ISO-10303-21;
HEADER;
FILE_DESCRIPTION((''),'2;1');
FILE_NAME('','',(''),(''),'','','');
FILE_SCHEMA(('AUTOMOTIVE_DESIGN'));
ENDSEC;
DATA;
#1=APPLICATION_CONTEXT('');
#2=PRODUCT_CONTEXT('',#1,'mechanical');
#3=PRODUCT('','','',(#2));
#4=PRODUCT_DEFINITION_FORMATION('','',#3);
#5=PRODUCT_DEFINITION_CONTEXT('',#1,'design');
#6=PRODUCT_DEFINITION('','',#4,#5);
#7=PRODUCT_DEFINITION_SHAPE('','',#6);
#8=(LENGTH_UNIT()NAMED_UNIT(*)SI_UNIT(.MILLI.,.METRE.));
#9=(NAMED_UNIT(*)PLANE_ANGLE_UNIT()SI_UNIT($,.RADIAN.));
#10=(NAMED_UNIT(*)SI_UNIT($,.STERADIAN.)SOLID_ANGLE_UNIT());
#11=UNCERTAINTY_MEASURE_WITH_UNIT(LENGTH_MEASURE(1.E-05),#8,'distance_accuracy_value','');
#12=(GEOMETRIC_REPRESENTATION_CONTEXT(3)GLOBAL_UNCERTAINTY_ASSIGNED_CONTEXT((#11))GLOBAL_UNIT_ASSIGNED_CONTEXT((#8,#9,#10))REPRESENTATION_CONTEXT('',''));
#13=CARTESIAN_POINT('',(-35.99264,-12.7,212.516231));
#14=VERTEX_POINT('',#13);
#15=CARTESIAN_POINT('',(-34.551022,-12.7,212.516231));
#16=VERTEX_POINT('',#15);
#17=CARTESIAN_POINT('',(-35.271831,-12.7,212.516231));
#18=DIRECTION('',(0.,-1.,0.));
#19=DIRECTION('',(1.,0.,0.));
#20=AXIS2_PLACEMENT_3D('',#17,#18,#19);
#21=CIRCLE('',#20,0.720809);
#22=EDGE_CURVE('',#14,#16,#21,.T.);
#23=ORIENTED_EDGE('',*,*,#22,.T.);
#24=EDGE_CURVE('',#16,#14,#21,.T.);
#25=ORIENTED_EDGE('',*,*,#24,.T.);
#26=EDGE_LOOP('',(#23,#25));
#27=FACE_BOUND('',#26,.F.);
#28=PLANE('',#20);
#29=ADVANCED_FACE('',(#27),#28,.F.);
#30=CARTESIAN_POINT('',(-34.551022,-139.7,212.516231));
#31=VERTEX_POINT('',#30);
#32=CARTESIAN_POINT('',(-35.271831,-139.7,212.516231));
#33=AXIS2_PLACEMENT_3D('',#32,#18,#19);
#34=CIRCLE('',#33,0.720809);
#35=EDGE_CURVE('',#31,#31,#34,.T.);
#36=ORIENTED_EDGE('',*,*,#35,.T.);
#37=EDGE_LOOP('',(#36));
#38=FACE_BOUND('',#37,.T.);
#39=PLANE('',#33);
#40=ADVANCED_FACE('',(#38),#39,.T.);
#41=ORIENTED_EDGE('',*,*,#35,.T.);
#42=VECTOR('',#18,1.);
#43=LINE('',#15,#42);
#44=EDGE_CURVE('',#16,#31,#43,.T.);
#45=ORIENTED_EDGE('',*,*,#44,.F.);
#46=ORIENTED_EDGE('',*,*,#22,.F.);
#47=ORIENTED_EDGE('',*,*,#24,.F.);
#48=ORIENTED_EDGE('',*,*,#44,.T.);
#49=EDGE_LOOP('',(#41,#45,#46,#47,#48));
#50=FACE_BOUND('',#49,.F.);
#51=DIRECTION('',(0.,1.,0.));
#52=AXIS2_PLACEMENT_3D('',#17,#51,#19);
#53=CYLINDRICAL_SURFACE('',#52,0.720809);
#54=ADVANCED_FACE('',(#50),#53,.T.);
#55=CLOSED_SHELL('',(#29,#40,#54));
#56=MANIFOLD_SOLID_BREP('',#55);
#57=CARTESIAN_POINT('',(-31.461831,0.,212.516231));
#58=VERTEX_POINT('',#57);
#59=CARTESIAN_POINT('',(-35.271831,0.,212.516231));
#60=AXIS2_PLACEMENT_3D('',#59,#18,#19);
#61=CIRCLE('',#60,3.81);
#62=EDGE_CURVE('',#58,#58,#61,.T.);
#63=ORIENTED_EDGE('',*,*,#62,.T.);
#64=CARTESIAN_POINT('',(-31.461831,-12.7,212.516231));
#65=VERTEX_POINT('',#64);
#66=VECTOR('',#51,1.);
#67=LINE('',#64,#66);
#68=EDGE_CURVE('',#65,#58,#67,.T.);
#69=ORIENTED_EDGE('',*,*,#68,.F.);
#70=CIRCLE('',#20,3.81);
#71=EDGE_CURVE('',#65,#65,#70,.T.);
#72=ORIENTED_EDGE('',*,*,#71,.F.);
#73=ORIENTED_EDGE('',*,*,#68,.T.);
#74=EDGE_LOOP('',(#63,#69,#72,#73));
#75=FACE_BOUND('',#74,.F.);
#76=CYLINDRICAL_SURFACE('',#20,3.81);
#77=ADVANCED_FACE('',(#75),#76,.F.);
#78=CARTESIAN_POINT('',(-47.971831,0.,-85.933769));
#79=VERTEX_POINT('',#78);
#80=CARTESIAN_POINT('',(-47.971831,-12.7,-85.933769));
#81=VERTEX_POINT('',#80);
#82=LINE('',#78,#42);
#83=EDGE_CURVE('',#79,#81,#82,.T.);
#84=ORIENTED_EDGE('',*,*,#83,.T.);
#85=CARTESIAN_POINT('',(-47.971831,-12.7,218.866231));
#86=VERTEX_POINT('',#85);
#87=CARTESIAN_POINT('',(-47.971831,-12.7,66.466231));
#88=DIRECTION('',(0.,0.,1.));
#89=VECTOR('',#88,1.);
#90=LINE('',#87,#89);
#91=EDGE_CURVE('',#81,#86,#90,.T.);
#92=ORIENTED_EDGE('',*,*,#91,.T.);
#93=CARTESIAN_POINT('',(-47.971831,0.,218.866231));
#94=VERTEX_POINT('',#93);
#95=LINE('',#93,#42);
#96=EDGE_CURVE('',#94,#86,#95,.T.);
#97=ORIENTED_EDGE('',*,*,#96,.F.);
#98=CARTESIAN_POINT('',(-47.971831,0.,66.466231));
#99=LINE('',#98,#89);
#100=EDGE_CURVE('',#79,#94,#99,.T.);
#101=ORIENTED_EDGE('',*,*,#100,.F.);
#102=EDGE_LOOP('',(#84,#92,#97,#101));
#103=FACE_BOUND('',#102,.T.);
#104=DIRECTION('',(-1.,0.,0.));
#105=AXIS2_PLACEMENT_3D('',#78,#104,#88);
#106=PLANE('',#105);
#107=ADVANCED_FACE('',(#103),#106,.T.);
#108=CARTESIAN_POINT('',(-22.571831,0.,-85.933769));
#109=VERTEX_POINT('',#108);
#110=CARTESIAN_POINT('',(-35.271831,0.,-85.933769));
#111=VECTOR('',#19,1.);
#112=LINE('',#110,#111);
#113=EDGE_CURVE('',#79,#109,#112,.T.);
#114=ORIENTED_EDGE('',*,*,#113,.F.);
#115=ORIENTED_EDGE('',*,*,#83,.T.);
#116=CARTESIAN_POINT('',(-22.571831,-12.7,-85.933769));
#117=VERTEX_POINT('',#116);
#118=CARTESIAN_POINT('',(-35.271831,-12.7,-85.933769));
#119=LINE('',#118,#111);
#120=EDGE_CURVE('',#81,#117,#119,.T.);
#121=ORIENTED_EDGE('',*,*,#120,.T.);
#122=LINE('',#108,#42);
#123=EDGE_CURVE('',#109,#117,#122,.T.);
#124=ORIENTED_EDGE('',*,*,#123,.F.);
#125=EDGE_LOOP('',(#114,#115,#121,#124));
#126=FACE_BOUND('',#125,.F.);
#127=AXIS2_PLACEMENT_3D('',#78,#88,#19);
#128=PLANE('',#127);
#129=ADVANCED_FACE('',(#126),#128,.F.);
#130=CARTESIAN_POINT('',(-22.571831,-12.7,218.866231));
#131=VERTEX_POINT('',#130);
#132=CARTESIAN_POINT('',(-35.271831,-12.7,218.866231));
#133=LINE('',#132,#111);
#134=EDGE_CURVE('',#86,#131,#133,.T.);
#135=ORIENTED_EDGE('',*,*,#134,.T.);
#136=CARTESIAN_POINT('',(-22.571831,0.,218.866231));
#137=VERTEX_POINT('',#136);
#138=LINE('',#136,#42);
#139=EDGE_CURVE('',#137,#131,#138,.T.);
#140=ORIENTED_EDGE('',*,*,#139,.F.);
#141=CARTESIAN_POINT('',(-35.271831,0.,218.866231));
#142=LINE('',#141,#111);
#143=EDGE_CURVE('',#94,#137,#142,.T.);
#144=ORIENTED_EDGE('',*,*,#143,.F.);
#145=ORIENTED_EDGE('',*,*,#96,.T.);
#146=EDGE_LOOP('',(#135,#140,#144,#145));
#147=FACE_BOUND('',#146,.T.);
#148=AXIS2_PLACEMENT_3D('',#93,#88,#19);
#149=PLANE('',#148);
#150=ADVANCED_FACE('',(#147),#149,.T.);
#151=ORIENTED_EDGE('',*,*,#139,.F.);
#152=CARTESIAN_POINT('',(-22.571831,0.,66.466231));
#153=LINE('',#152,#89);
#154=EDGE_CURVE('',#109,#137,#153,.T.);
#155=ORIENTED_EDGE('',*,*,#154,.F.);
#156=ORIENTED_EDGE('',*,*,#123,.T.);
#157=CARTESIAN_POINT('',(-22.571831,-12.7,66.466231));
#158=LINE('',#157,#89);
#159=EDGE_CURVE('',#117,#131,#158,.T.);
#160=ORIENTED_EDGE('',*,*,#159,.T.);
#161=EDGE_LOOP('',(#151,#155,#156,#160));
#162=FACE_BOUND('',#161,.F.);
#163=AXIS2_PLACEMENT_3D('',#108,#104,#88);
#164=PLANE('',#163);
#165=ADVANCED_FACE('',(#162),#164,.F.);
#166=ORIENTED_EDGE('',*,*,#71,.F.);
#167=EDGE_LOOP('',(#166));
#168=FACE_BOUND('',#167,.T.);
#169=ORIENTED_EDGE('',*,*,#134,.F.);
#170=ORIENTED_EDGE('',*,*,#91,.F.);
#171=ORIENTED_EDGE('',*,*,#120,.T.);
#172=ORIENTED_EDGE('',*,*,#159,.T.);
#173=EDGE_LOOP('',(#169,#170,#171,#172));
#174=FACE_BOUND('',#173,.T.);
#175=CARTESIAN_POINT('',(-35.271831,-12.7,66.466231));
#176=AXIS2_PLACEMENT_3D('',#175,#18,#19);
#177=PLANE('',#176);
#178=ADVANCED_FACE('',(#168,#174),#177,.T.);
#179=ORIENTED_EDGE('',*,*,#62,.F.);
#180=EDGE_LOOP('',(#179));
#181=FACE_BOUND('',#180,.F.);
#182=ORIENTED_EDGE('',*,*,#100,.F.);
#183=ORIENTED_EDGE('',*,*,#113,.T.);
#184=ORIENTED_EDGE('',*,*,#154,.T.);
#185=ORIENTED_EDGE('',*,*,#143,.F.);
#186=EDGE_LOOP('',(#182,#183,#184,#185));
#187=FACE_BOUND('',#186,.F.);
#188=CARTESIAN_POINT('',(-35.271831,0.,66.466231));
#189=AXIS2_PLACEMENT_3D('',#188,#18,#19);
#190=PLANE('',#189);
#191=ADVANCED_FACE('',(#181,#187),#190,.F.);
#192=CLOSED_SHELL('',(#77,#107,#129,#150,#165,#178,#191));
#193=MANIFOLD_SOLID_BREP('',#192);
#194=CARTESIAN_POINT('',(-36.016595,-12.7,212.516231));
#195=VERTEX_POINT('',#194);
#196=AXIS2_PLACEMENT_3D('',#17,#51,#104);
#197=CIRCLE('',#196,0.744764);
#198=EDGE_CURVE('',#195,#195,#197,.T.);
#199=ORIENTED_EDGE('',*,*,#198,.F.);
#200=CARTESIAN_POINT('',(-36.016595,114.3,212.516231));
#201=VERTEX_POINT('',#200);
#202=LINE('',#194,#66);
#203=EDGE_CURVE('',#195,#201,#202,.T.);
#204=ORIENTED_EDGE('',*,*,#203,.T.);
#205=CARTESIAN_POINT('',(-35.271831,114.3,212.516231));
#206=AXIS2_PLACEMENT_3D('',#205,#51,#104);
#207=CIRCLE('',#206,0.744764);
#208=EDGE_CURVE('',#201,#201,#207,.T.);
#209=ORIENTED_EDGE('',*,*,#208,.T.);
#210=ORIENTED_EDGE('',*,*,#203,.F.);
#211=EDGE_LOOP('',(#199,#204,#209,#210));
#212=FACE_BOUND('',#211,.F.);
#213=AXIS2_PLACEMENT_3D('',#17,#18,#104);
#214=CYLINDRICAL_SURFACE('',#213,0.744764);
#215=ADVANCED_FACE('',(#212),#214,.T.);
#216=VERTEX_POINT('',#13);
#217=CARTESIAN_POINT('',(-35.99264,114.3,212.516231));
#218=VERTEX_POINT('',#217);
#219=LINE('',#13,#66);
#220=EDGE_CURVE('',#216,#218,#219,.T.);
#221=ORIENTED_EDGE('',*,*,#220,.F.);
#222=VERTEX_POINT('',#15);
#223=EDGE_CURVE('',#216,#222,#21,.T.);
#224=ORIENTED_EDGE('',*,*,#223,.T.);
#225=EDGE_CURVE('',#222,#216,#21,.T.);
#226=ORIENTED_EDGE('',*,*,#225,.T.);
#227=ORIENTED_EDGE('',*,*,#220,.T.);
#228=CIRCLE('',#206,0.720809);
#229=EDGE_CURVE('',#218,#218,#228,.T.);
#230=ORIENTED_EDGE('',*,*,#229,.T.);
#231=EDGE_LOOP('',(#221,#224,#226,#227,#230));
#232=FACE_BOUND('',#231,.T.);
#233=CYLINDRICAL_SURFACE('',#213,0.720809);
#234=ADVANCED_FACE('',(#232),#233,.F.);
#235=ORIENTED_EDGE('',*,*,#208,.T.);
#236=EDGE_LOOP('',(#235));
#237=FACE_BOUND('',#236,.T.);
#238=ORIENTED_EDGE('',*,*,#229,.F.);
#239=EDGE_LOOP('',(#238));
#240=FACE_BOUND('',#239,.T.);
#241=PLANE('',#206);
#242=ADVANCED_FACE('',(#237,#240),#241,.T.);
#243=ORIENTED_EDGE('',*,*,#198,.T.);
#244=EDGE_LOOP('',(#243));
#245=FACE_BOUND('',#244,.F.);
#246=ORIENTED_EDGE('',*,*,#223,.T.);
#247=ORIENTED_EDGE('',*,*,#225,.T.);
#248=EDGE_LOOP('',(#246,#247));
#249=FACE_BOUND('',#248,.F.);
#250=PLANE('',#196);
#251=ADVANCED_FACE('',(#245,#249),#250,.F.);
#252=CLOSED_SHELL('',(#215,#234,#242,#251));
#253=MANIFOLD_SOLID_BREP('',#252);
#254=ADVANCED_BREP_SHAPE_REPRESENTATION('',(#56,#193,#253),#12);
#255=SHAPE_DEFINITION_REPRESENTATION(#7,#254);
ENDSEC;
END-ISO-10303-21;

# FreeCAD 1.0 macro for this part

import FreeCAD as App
import Part
import Sketcher
Q = App.Units.Quantity

doc = App.newDocument("Part")
body = doc.addObject("PartDesign::Body", "Body")

# Sketch on XZ plane
sketch1 = body.newObject("Sketcher::SketchObject", "Sketch")
sketch1.AttachmentSupport = (doc.getObject("XZ_Plane"), [""])
sketch1.MapMode = "FlatFace"
sketch1.addGeometry([
    Part.LineSegment(App.Vector(-48, 219, 0), App.Vector(-48, -86, 0)),
    Part.LineSegment(App.Vector(-48, -86, 0), App.Vector(-23, -86, 0)),
    Part.LineSegment(App.Vector(-23, -86, 0), App.Vector(-23, 219, 0)),
    Part.LineSegment(App.Vector(-23, 219, 0), App.Vector(-48, 219, 0)),
], False)
sketch1.addConstraint([
    Sketcher.Constraint("Coincident", 0, 2, 1, 1),
    Sketcher.Constraint("Coincident", 1, 2, 2, 1),
    Sketcher.Constraint("Coincident", 2, 2, 3, 1),
    Sketcher.Constraint("Coincident", 3, 2, 0, 1),
    Sketcher.Constraint("Vertical", 0),
    Sketcher.Constraint("Horizontal", 1),
    Sketcher.Constraint("Vertical", 2),
    Sketcher.Constraint("Horizontal", 3),
    Sketcher.Constraint("DistanceX", 1, 1, 1, 2, Q("1 in")),
    Sketcher.Constraint("DistanceY", 0, 2, 0, 1, Q("12 in")),
    Sketcher.Constraint("DistanceX", 0, 2, -1, 1, Q("47.971831 mm")),
    Sketcher.Constraint("DistanceY", 0, 2, -1, 1, Q("85.933769 mm")),
])
pad1 = body.newObject("PartDesign::Pad", "Pad")
pad1.Profile = sketch1
pad1.Length = Q("0.5 in")

# Sketch on XZ plane
sketch2 = body.newObject("Sketcher::SketchObject", "Sketch001")
sketch2.AttachmentSupport = (doc.getObject("XZ_Plane"), [""])
sketch2.MapMode = "FlatFace"
sketch2.AttachmentOffset = App.Placement(App.Vector(0, 0, 0.5 * 25.4), App.Rotation())
sketch2.addGeometry(Part.Circle(App.Vector(-35.3, 212.5, 0), App.Vector(0, 0, 1), 3.8), False)
sketch2.addConstraint([
    Sketcher.Constraint("Diameter", 0, Q("0.3 in")),
    Sketcher.Constraint("DistanceX", 0, 3, -1, 1, Q("35.271831 mm")),
    Sketcher.Constraint("DistanceY", -1, 1, 0, 3, Q("212.516231 mm")),
])
pocket1 = body.newObject("PartDesign::Pocket", "Pocket")
pocket1.Profile = sketch2
pocket1.Length = Q("1 in")
body2 = doc.addObject("PartDesign::Body", "Body001")
body2.AllowCompound = True

# Sketch on XZ plane
sketch3 = body2.newObject("Sketcher::SketchObject", "Sketch002")
sketch3.AttachmentSupport = (doc.getObject("XZ_Plane001"), [""])
sketch3.MapMode = "FlatFace"
sketch3.AttachmentOffset = App.Placement(App.Vector(0, 0, 0.5 * 25.4), App.Rotation())
sketch3.addGeometry(Part.Circle(App.Vector(-35.3, 212.5, 0), App.Vector(0, 0, 1), 0.7), False)
sketch3.addConstraint([
    Sketcher.Constraint("Diameter", 0, Q("1.441618 mm")),
    Sketcher.Constraint("DistanceX", 0, 3, -1, 1, Q("35.271831 mm")),
    Sketcher.Constraint("DistanceY", -1, 1, 0, 3, Q("212.516231 mm")),
])
pad2 = body2.newObject("PartDesign::Pad", "Pad001")
pad2.Profile = sketch3
pad2.Length = Q("5 in")

# Sketch on XZ plane
sketch4 = body2.newObject("Sketcher::SketchObject", "Sketch003")
sketch4.AttachmentSupport = (doc.getObject("XZ_Plane001"), [""])
sketch4.MapMode = "FlatFace"
sketch4.AttachmentOffset = App.Placement(App.Vector(0, 0, 0.5 * 25.4), App.Rotation())
sketch4.addGeometry([
    Part.Circle(App.Vector(-35.3, 212.5, 0), App.Vector(0, 0, 1), 0.7),
    Part.Circle(App.Vector(-35.3, 212.5, 0), App.Vector(0, 0, 1), 0.7),
], False)
sketch4.addConstraint([
    Sketcher.Constraint("Coincident", 1, 3, 0, 3),
    Sketcher.Constraint("Diameter", 1, Q("1.441618 mm")),
    Sketcher.Constraint("Diameter", 0, Q("1.489528 mm")),
    Sketcher.Constraint("DistanceX", 0, 3, -1, 1, Q("35.271831 mm")),
    Sketcher.Constraint("DistanceY", -1, 1, 0, 3, Q("212.516231 mm")),
])
pad3 = body2.newObject("PartDesign::Pad", "Pad002")
pad3.Profile = sketch4
pad3.Length = Q("5 in")
pad3.Reversed = True

doc.recompute()
